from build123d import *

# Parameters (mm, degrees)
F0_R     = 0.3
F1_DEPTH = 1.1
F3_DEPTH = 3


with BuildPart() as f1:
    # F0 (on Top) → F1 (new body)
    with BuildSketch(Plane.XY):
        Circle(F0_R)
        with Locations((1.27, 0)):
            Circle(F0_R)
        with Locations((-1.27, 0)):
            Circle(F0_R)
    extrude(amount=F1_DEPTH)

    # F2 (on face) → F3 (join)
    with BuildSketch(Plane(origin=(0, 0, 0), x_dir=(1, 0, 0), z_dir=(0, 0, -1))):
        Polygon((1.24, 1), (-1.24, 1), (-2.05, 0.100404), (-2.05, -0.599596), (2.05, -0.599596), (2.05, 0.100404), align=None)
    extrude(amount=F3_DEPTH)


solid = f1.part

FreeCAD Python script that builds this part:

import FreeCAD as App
import Part
import Sketcher
Q = App.Units.Quantity

doc = App.newDocument("Part")
params = doc.addObject("Spreadsheet::Sheet", "Params")
for row, (alias, value) in enumerate([
    ("sketch1_diameter", "0.6 mm"),
    ("pad1_length", "1.1 mm"),
    ("sketch2_width", "4.1 mm"),
    ("sketch2_height", "0.7 mm"),
    ("sketch2_width2", "2.48 mm"),
    ("pad2_length", "3 mm"),
], start=1):
    params.set(f"A{row}", alias)
    params.set(f"B{row}", "=" + value)
    params.setAlias(f"B{row}", alias)

body = doc.addObject("PartDesign::Body", "Body")
body.AllowCompound = True

sketch1 = body.newObject("Sketcher::SketchObject", "Sketch")
sketch1.AttachmentSupport = (doc.getObject("XY_Plane"), [""])
sketch1.MapMode = "FlatFace"
sketch1.addGeometry([
    Part.Circle(App.Vector(0, 0, 0), App.Vector(0, 0, 1), 0.3),
    Part.Circle(App.Vector(1.27, 0, 0), App.Vector(0, 0, 1), 0.3),
    Part.Circle(App.Vector(-1.27, 0, 0), App.Vector(0, 0, 1), 0.3),
], False)
sketch1.addConstraint([
    Sketcher.Constraint("Coincident", 0, 3, -1, 1),
    Sketcher.Constraint("Equal", 0, 1),
    Sketcher.Constraint("Equal", 1, 2),
    Sketcher.Constraint("Symmetric", 1, 3, 2, 3, -1, 1),
    Sketcher.Constraint("PointOnObject", 1, 3, -1),
    Sketcher.Constraint("Diameter", 0, 0.6),
    Sketcher.Constraint("DistanceX", -1, 1, 1, 3, 1.27),
])
sketch1.setExpression("Constraints[5]", "Params.sketch1_diameter")
pad1 = body.newObject("PartDesign::Pad", "Pad")
pad1.Profile = sketch1
pad1.setExpression("Length", "Params.pad1_length")

sketch2 = body.newObject("Sketcher::SketchObject", "Sketch001")
sketch2.AttachmentSupport = (doc.getObject("XY_Plane"), [""])
sketch2.MapMode = "FlatFace"
sketch2.addGeometry([
    Part.LineSegment(App.Vector(1.2, -1, 0), App.Vector(-1.2, -1, 0)),
    Part.LineSegment(App.Vector(-1.2, -1, 0), App.Vector(-2, -0.1, 0)),
    Part.LineSegment(App.Vector(-2, -0.1, 0), App.Vector(-2, 0.6, 0)),
    Part.LineSegment(App.Vector(-2, 0.6, 0), App.Vector(2, 0.6, 0)),
    Part.LineSegment(App.Vector(2, 0.6, 0), App.Vector(2, -0.1, 0)),
    Part.LineSegment(App.Vector(2, -0.1, 0), App.Vector(1.2, -1, 0)),
], False)
sketch2.addConstraint([
    Sketcher.Constraint("Coincident", 0, 2, 1, 1),
    Sketcher.Constraint("Coincident", 1, 2, 2, 1),
    Sketcher.Constraint("Coincident", 2, 2, 3, 1),
    Sketcher.Constraint("Coincident", 3, 2, 4, 1),
    Sketcher.Constraint("Coincident", 4, 2, 5, 1),
    Sketcher.Constraint("Coincident", 5, 2, 0, 1),
    Sketcher.Constraint("Horizontal", 0),
    Sketcher.Constraint("Vertical", 2),
    Sketcher.Constraint("Horizontal", 3),
    Sketcher.Constraint("Vertical", 4),
    Sketcher.Constraint("Symmetric", 1, 2, 4, 2, -2),
    Sketcher.Constraint("Equal", 1, 5),
    Sketcher.Constraint("Angle", 1, Q("132.000004 deg")),
    Sketcher.Constraint("DistanceX", 3, 1, 3, 2, 4.1),
    Sketcher.Constraint("DistanceY", 2, 1, 2, 2, 0.7),
    Sketcher.Constraint("DistanceY", 0, 2, -1, 1, 1.0),
    Sketcher.Constraint("DistanceX", 0, 2, 0, 1, 2.48),
])
sketch2.setExpression("Constraints[13]", "Params.sketch2_width")
sketch2.setExpression("Constraints[14]", "Params.sketch2_height")
sketch2.setExpression("Constraints[16]", "Params.sketch2_width2")
pad2 = body.newObject("PartDesign::Pad", "Pad001")
pad2.Profile = sketch2
pad2.setExpression("Length", "Params.pad2_length")
pad2.Reversed = True

doc.recompute()
